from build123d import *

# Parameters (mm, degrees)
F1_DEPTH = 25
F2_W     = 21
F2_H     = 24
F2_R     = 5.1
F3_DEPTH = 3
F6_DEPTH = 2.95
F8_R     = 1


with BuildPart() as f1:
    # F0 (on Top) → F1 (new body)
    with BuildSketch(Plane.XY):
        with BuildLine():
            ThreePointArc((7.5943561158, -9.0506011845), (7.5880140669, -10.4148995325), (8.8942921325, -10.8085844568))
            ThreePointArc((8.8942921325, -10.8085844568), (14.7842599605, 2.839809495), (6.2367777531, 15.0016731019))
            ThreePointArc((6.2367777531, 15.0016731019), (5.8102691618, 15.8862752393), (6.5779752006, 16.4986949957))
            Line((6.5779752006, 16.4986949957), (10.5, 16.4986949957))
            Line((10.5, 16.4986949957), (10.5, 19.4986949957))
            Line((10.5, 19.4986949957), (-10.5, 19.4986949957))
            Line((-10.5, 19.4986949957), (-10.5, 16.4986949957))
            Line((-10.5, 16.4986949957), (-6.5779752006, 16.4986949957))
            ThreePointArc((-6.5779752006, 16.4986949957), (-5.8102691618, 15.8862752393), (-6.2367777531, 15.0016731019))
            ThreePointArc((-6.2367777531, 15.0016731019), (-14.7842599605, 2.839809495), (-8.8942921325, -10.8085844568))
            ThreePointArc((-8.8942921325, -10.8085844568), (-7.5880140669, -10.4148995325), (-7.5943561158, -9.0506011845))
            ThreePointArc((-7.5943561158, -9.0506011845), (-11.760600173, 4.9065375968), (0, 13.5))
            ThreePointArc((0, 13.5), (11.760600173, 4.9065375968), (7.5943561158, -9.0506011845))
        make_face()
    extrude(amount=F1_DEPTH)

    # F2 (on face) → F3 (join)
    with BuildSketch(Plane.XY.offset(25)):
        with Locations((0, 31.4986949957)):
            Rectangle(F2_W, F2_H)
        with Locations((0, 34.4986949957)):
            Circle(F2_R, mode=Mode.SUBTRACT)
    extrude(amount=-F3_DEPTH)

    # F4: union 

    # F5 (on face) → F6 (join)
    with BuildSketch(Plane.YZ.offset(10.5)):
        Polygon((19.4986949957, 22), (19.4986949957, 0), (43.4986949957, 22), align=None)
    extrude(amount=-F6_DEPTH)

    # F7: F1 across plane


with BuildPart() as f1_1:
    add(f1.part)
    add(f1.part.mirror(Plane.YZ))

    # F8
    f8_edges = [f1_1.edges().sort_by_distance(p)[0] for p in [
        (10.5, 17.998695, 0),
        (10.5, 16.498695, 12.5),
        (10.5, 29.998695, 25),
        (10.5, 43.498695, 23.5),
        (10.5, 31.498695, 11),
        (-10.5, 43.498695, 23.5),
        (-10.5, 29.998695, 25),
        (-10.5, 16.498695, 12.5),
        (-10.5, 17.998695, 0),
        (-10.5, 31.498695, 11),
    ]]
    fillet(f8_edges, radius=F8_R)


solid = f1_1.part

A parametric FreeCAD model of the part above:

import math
import FreeCAD as App
import Part
import Sketcher
from FreeCAD import Vector
Q = App.Units.Quantity


def edges_at(feature, points):
    """Names of the edges that pass closest to the given points."""
    edges = feature.Shape.Edges
    near = lambda p: min(range(len(edges)), key=lambda i: edges[i].distToShape(Part.Vertex(*p))[0])
    return sorted({f"Edge{near(p) + 1}" for p in points})


def add_polygon(sketch, points):
    """Adds a closed chain of lines whose ends are joined by coincident constraints."""
    first, n = sketch.GeometryCount, len(points)
    for a, b in zip(points, points[1:] + points[:1]):
        sketch.addGeometry(Part.LineSegment(App.Vector(*a, 0), App.Vector(*b, 0)), False)
    for i in range(n):
        sketch.addConstraint(Sketcher.Constraint("Coincident", first + i, 2, first + (i + 1) % n, 1))

doc = App.newDocument("Part")
params = doc.addObject("Spreadsheet::Sheet", "Params")
for row, (alias, value) in enumerate([
    ("sketch1_width", "21 mm"),
    ("sketch1_height", "3 mm"),
    ("pad1_length", "25 mm"),
    ("sketch2_diameter", "10.2 mm"),
    ("sketch2_width", "21 mm"),
    ("sketch2_height", "24 mm"),
    ("pad2_length", "3 mm"),
    ("sketch3_width", "24 mm"),
    ("sketch3_height", "22 mm"),
    ("pad3_length", "2.95 mm"),
    ("fillet_radius", "1 mm"),
], start=1):
    params.set(f"A{row}", alias)
    params.set(f"B{row}", "=" + value)
    params.setAlias(f"B{row}", alias)

body = doc.addObject("PartDesign::Body", "Body")

sketch1 = doc.addObject("Sketcher::SketchObject", "Sketch")
body.addObject(sketch1)
sketch1.AttachmentSupport = (doc.XY_Plane, [""])
sketch1.MapMode = "FlatFace"
sketch1.addGeometry(Part.ArcOfCircle(Part.Circle(Vector(8.5, -9.7, 0), Vector(0, 0, 1), 1.1), math.radians(143), math.radians(290)), False)
sketch1.addGeometry(Part.ArcOfCircle(Part.Circle(Vector(-0.4, 1.3, 0), Vector(0, 0, 1), 15.2), math.radians(-53), math.radians(64)), False)
sketch1.addGeometry(Part.ArcOfCircle(Part.Circle(Vector(6.6, 15.7, 0), Vector(0, 0, 1), 0.8), math.radians(90), math.radians(244)), False)
sketch1.addGeometry(Part.LineSegment(Vector(6.6, 16.5, 0), Vector(10.5, 16.5, 0)), False)
sketch1.addGeometry(Part.LineSegment(Vector(10.5, 16.5, 0), Vector(10.5, 19.5, 0)), False)
sketch1.addGeometry(Part.LineSegment(Vector(10.5, 19.5, 0), Vector(-10.5, 19.5, 0)), False)
sketch1.addGeometry(Part.LineSegment(Vector(-10.5, 19.5, 0), Vector(-10.5, 16.5, 0)), False)
sketch1.addGeometry(Part.LineSegment(Vector(-10.5, 16.5, 0), Vector(-6.6, 16.5, 0)), False)
sketch1.addGeometry(Part.ArcOfCircle(Part.Circle(Vector(-6.6, 15.7, 0), Vector(0, 0, 1), 0.8), math.radians(-64), math.radians(90)), False)
sketch1.addGeometry(Part.ArcOfCircle(Part.Circle(Vector(0.4, 1.3, 0), Vector(0, 0, 1), 15.2), math.radians(116), math.radians(233)), False)
sketch1.addGeometry(Part.ArcOfCircle(Part.Circle(Vector(-8.5, -9.7, 0), Vector(0, 0, 1), 1.1), math.radians(-110), math.radians(37)), False)
sketch1.addGeometry(Part.ArcOfCircle(Part.Circle(Vector(0.2, 0.9, 0), Vector(0, 0, 1), 12.6), math.radians(91), math.radians(232)), False)
sketch1.addGeometry(Part.ArcOfCircle(Part.Circle(Vector(-0.2, 0.9, 0), Vector(0, 0, 1), 12.6), math.radians(-52), math.radians(89)), False)
sketch1.addConstraint(Sketcher.Constraint("Coincident", 0, 2, 1, 1))
sketch1.addConstraint(Sketcher.Constraint("Tangent", 1, 2, 2, 2))
sketch1.addConstraint(Sketcher.Constraint("Tangent", 2, 1, 3, 1))
sketch1.addConstraint(Sketcher.Constraint("Coincident", 3, 2, 4, 1))
sketch1.addConstraint(Sketcher.Constraint("Coincident", 4, 2, 5, 1))
sketch1.addConstraint(Sketcher.Constraint("Coincident", 5, 2, 6, 1))
sketch1.addConstraint(Sketcher.Constraint("Coincident", 6, 2, 7, 1))
sketch1.addConstraint(Sketcher.Constraint("Tangent", 7, 2, 8, 2))
sketch1.addConstraint(Sketcher.Constraint("Tangent", 8, 1, 9, 1))
sketch1.addConstraint(Sketcher.Constraint("Coincident", 9, 2, 10, 1))
sketch1.addConstraint(Sketcher.Constraint("Coincident", 10, 2, 11, 2))
sketch1.addConstraint(Sketcher.Constraint("Coincident", 11, 1, 12, 2))
sketch1.addConstraint(Sketcher.Constraint("Coincident", 12, 1, 0, 1))
sketch1.addConstraint(Sketcher.Constraint("Horizontal", 3))
sketch1.addConstraint(Sketcher.Constraint("Vertical", 4))
sketch1.addConstraint(Sketcher.Constraint("Horizontal", 5))
sketch1.addConstraint(Sketcher.Constraint("Vertical", 6))
sketch1.addConstraint(Sketcher.Constraint("Horizontal", 7))
sketch1.addConstraint(Sketcher.Constraint("Equal", 2, 8))
sketch1.addConstraint(Sketcher.Constraint("Equal", 1, 9))
sketch1.addConstraint(Sketcher.Constraint("Equal", 0, 10))
sketch1.addConstraint(Sketcher.Constraint("Equal", 11, 12))
sketch1.addConstraint(Sketcher.Constraint("Symmetric", 2, 3, 8, 3, -2))
sketch1.addConstraint(Sketcher.Constraint("Symmetric", 0, 3, 10, 3, -2))
sketch1.addConstraint(Sketcher.Constraint("Symmetric", 11, 3, 12, 3, -2))
sketch1.addConstraint(Sketcher.Constraint("Horizontal", 1, 3, 9, 3))
sketch1.addConstraint(Sketcher.Constraint("Equal", 3, 7))
sketch1.addConstraint(Sketcher.Constraint("DistanceX", 5, 2, 5, 1, Q("21 mm")))
sketch1.addConstraint(Sketcher.Constraint("DistanceY", 4, 1, 4, 2, Q("3 mm")))
sketch1.addConstraint(Sketcher.Constraint("DistanceY", -1, 1, 11, 1, Q("13.5 mm")))
sketch1.addConstraint(Sketcher.Constraint("Radius", 1, Q("15.22487 mm")))
sketch1.addConstraint(Sketcher.Constraint("Radius", 0, Q("1.140183 mm")))
sketch1.addConstraint(Sketcher.Constraint("Radius", 2, Q("0.787393 mm")))
sketch1.addConstraint(Sketcher.Constraint("Radius", 11, Q("12.624206 mm")))
sketch1.addConstraint(Sketcher.Constraint("DistanceY", -1, 1, 2, 3, Q("15.711302 mm")))
sketch1.addConstraint(Sketcher.Constraint("DistanceY", 10, 2, -1, 1, Q("9.050601 mm")))
sketch1.addConstraint(Sketcher.Constraint("DistanceY", 0, 3, 2, 3, Q("25.448299 mm")))
sketch1.addConstraint(Sketcher.Constraint("DistanceX", 11, 3, 0, 3, Q("8.3014 mm")))
sketch1.addConstraint(Sketcher.Constraint("DistanceX", 3, 1, 3, 2, Q("3.922025 mm")))
sketch1.addConstraint(Sketcher.Constraint("DistanceX", 1, 3, 2, 3, Q("6.938518 mm")))
sketch1.setExpression("Constraints[27]", "Params.sketch1_width")
sketch1.setExpression("Constraints[28]", "Params.sketch1_height")
pad1 = doc.addObject("PartDesign::Pad", "Pad")
body.addObject(pad1)
pad1.Profile = sketch1
pad1.setExpression("Length", "Params.pad1_length")

sketch2 = doc.addObject("Sketcher::SketchObject", "Sketch001")
body.addObject(sketch2)
sketch2.AttachmentSupport = (doc.XY_Plane, [""])
sketch2.MapMode = "FlatFace"
sketch2.AttachmentOffset = App.Placement(Vector(0, 0, 25), App.Rotation())
add_polygon(sketch2, [(-10, 43), (-10, 19), (10, 19), (10, 43)])
sketch2.addGeometry(Part.Circle(Vector(0, 34, 0), Vector(0, 0, 1), 5), False)
sketch2.addConstraint(Sketcher.Constraint("Vertical", 0))
sketch2.addConstraint(Sketcher.Constraint("Horizontal", 1))
sketch2.addConstraint(Sketcher.Constraint("Vertical", 2))
sketch2.addConstraint(Sketcher.Constraint("Horizontal", 3))
sketch2.addConstraint(Sketcher.Constraint("PointOnObject", 4, 3, -2))
sketch2.addConstraint(Sketcher.Constraint("Diameter", 4, Q("10.2 mm")))
sketch2.addConstraint(Sketcher.Constraint("DistanceX", 1, 1, 1, 2, Q("21 mm")))
sketch2.addConstraint(Sketcher.Constraint("DistanceY", 0, 2, 0, 1, Q("24 mm")))
sketch2.addConstraint(Sketcher.Constraint("DistanceY", 0, 2, 4, 3, Q("15 mm")))
sketch2.addConstraint(Sketcher.Constraint("DistanceX", 0, 2, -1, 1, Q("10.5 mm")))
sketch2.addConstraint(Sketcher.Constraint("DistanceY", -1, 1, 4, 3, Q("34.498695 mm")))
sketch2.setExpression("Constraints[9]", "Params.sketch2_diameter")
sketch2.setExpression("Constraints[10]", "Params.sketch2_width")
sketch2.setExpression("Constraints[11]", "Params.sketch2_height")
pad2 = doc.addObject("PartDesign::Pad", "Pad001")
body.addObject(pad2)
pad2.Profile = sketch2
pad2.setExpression("Length", "Params.pad2_length")
pad2.Reversed = True

sketch3 = doc.addObject("Sketcher::SketchObject", "Sketch002")
body.addObject(sketch3)
sketch3.AttachmentSupport = (doc.YZ_Plane, [""])
sketch3.MapMode = "FlatFace"
sketch3.AttachmentOffset = App.Placement(Vector(0, 0, 10.5), App.Rotation())
add_polygon(sketch3, [(19, 22), (19, 0), (43, 22)])
sketch3.addConstraint(Sketcher.Constraint("Vertical", 0))
sketch3.addConstraint(Sketcher.Constraint("Horizontal", 2))
sketch3.addConstraint(Sketcher.Constraint("PointOnObject", 0, 2, -1))
sketch3.addConstraint(Sketcher.Constraint("DistanceX", 2, 2, 2, 1, Q("24 mm")))
sketch3.addConstraint(Sketcher.Constraint("DistanceY", 0, 2, 0, 1, Q("22 mm")))
sketch3.addConstraint(Sketcher.Constraint("DistanceX", -1, 1, 0, 2, Q("19.498695 mm")))
sketch3.setExpression("Constraints[6]", "Params.sketch3_width")
sketch3.setExpression("Constraints[7]", "Params.sketch3_height")
pad3 = doc.addObject("PartDesign::Pad", "Pad002")
body.addObject(pad3)
pad3.Profile = sketch3
pad3.setExpression("Length", "Params.pad3_length")
pad3.Reversed = True
body2 = doc.addObject("PartDesign::Body", "Body001")
doc.recompute()

body2.BaseFeature = body
doc.recompute()

mirroring = doc.addObject("Part::Mirroring", "Mirroring")
mirroring.Source = body
mirroring.Base = Vector(0, 0, 0)
mirroring.Normal = Vector(1, 0, 0)
body3 = doc.addObject("PartDesign::Body", "Body002")
body3.BaseFeature = mirroring
boolean = doc.addObject("PartDesign::Boolean", "Boolean")
body2.addObject(boolean)
boolean.Type = "Fuse"
boolean.addObjects([body3])
doc.recompute()

fillet = doc.addObject("PartDesign::Fillet", "Fillet")
body2.addObject(fillet)
fillet.Base = (boolean, edges_at(boolean, [
    (10.5, 17.999, 0),
    (10.5, 16.499, 12.5),
    (10.5, 29.999, 25),
    (10.5, 43.499, 23.5),
    (10.5, 31.499, 11),
    (-10.5, 43.499, 23.5),
    (-10.5, 29.999, 25),
    (-10.5, 16.499, 12.5),
    (-10.5, 17.999, 0),
    (-10.5, 31.499, 11),
]))
fillet.setExpression("Radius", "Params.fillet_radius")
mirroring.Visibility = False

doc.recompute()
